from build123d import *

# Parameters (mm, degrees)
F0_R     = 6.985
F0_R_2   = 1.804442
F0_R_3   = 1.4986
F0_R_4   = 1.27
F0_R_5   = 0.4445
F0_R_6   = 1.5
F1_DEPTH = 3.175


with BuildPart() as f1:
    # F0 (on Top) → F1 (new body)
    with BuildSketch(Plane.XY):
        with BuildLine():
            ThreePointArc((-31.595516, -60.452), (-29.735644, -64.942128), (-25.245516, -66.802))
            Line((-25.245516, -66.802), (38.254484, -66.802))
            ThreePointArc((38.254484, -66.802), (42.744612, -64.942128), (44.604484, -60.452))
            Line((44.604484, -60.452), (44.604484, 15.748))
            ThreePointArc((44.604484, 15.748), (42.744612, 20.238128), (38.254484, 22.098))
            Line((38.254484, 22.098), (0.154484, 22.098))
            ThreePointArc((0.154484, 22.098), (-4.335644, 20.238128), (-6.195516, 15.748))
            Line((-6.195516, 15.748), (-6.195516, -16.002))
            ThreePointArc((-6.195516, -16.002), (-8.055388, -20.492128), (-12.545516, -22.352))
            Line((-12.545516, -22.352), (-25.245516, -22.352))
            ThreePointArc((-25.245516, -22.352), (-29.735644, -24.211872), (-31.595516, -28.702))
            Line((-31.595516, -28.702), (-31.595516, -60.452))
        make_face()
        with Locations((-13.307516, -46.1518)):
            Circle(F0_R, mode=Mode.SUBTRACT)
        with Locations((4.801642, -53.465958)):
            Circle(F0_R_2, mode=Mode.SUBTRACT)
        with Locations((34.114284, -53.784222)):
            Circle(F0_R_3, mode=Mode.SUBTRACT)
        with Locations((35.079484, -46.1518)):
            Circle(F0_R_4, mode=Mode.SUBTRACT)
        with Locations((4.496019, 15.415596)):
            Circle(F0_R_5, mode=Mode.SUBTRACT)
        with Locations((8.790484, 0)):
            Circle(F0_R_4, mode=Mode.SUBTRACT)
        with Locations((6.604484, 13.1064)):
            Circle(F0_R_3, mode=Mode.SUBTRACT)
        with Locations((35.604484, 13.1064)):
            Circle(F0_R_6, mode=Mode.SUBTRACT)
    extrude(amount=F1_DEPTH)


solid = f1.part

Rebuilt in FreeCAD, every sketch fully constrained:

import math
import FreeCAD as App
import Part
import Sketcher
from FreeCAD import Vector
Q = App.Units.Quantity

doc = App.newDocument("Part")
params = doc.addObject("Spreadsheet::Sheet", "Params")
for row, (alias, value) in enumerate([
    ("sketch1_diameter", "0.1 in"),
    ("sketch1_diameter2", "0.55 in"),
    ("sketch1_height", "3 in"),
    ("sketch1_radius", "0.25 in"),
    ("sketch1_diameter3", "0.118 in"),
    ("pad1_length", "0.125 in"),
], start=1):
    params.set(f"A{row}", alias)
    params.set(f"B{row}", "=" + value)
    params.setAlias(f"B{row}", alias)

body = doc.addObject("PartDesign::Body", "Body")

sketch1 = body.newObject("Sketcher::SketchObject", "Sketch")
sketch1.AttachmentSupport = (doc.getObject("XY_Plane"), [""])
sketch1.MapMode = "FlatFace"
sketch1.addGeometry([
    Part.ArcOfCircle(Part.Circle(Vector(-25.25, -60.45, 0), Vector(0, 0, 1), 6.35), math.radians(-180), math.radians(-90)),
    Part.LineSegment(Vector(-25.25, -66.8, 0), Vector(38.25, -66.8, 0)),
    Part.ArcOfCircle(Part.Circle(Vector(38.25, -60.45, 0), Vector(0, 0, 1), 6.35), math.radians(-90), math.radians(0)),
    Part.LineSegment(Vector(44.6, -60.45, 0), Vector(44.6, 15.75, 0)),
    Part.ArcOfCircle(Part.Circle(Vector(38.25, 15.75, 0), Vector(0, 0, 1), 6.35), math.radians(0), math.radians(90)),
    Part.LineSegment(Vector(38.25, 22.1, 0), Vector(0.15, 22.1, 0)),
    Part.ArcOfCircle(Part.Circle(Vector(0.15, 15.75, 0), Vector(0, 0, 1), 6.35), math.radians(90), math.radians(180)),
    Part.LineSegment(Vector(-6.2, 15.75, 0), Vector(-6.2, -16, 0)),
    Part.ArcOfCircle(Part.Circle(Vector(-12.55, -16, 0), Vector(0, 0, 1), 6.35), math.radians(-90), math.radians(0)),
    Part.LineSegment(Vector(-12.55, -22.35, 0), Vector(-25.25, -22.35, 0)),
    Part.ArcOfCircle(Part.Circle(Vector(-25.25, -28.7, 0), Vector(0, 0, 1), 6.35), math.radians(90), math.radians(180)),
    Part.LineSegment(Vector(-31.6, -28.7, 0), Vector(-31.6, -60.45, 0)),
    Part.Circle(Vector(-13.31, -46.15, 0), Vector(0, 0, 1), 6.99),
    Part.Circle(Vector(4.8, -53.47, 0), Vector(0, 0, 1), 1.8),
    Part.Circle(Vector(34.11, -53.78, 0), Vector(0, 0, 1), 1.5),
    Part.Circle(Vector(35.08, -46.15, 0), Vector(0, 0, 1), 1.27),
    Part.Circle(Vector(4.5, 15.42, 0), Vector(0, 0, 1), 0.44),
    Part.Circle(Vector(6.6, 13.11, 0), Vector(0, 0, 1), 1.5),
    Part.Circle(Vector(8.79, 0, 0), Vector(0, 0, 1), 1.27),
    Part.Circle(Vector(35.6, 13.11, 0), Vector(0, 0, 1), 1.5),
], False)
sketch1.addConstraint([
    Sketcher.Constraint("Tangent", 0, 2, 1, 1),
    Sketcher.Constraint("Tangent", 1, 2, 2, 1),
    Sketcher.Constraint("Tangent", 2, 2, 3, 1),
    Sketcher.Constraint("Tangent", 3, 2, 4, 1),
    Sketcher.Constraint("Tangent", 4, 2, 5, 1),
    Sketcher.Constraint("Tangent", 5, 2, 6, 1),
    Sketcher.Constraint("Tangent", 6, 2, 7, 1),
    Sketcher.Constraint("Tangent", 7, 2, 8, 2),
    Sketcher.Constraint("Tangent", 8, 1, 9, 1),
    Sketcher.Constraint("Tangent", 9, 2, 10, 1),
    Sketcher.Constraint("Tangent", 10, 2, 11, 1),
    Sketcher.Constraint("Tangent", 11, 2, 0, 1),
    Sketcher.Constraint("Horizontal", 1),
    Sketcher.Constraint("Vertical", 3),
    Sketcher.Constraint("Horizontal", 5),
    Sketcher.Constraint("Vertical", 7),
    Sketcher.Constraint("Horizontal", 9),
    Sketcher.Constraint("Vertical", 11),
    Sketcher.Constraint("Equal", 0, 2),
    Sketcher.Constraint("Equal", 2, 4),
    Sketcher.Constraint("Equal", 4, 6),
    Sketcher.Constraint("Equal", 6, 8),
    Sketcher.Constraint("Equal", 8, 10),
    Sketcher.Constraint("Equal", 14, 17),
    Sketcher.Constraint("Equal", 15, 18),
    Sketcher.Constraint("PointOnObject", 18, 3, -1),
    Sketcher.Constraint("Horizontal", 12, 3, 15, 3),
    Sketcher.Constraint("Horizontal", 17, 3, 19, 3),
    Sketcher.Constraint("Equal", 7, 11),
    Sketcher.Constraint("Diameter", 15, Q("0.1 in")),
    Sketcher.Constraint("Diameter", 12, Q("0.55 in")),
    Sketcher.Constraint("DistanceY", 3, 1, 3, 2, Q("3 in")),
    Sketcher.Constraint("Radius", 0, Q("0.25 in")),
    Sketcher.Constraint("Diameter", 14, Q("0.118 in")),
    Sketcher.Constraint("Diameter", 16, Q("0.035 in")),
    Sketcher.Constraint("DistanceX", 1, 1, 1, 2, Q("2.5 in")),
    Sketcher.Constraint("DistanceX", 5, 2, 5, 1, Q("1.5 in")),
    Sketcher.Constraint("Diameter", 19, Q("3 mm")),
    Sketcher.Constraint("DistanceY", 0, 3, -1, 1, Q("2.38 in")),
    Sketcher.Constraint("DistanceX", 0, 3, 12, 3, Q("0.47 in")),
    Sketcher.Constraint("DistanceX", 6, 3, 18, 3, Q("0.34 in")),
    Sketcher.Constraint("DistanceY", 12, 3, -1, 1, Q("1.817 in")),
    Sketcher.Constraint("DistanceY", -1, 1, 17, 3, Q("0.516 in")),
    Sketcher.Constraint("DistanceX", 14, 3, 2, 3, Q("0.163 in")),
    Sketcher.Constraint("DistanceX", 14, 3, 15, 3, Q("0.038 in")),
    Sketcher.Constraint("Diameter", 13, Q("3.608884 mm")),
    Sketcher.Constraint("DistanceX", 6, 3, 17, 3, Q("6.45 mm")),
    Sketcher.Constraint("DistanceX", 19, 3, 4, 3, Q("2.65 mm")),
    Sketcher.Constraint("DistanceX", -1, 1, 16, 3, Q("4.496019 mm")),
    Sketcher.Constraint("DistanceX", 12, 3, 13, 3, Q("18.109158 mm")),
    Sketcher.Constraint("DistanceY", 0, 3, 13, 3, Q("6.986042 mm")),
    Sketcher.Constraint("DistanceY", 14, 3, 12, 3, Q("7.632422 mm")),
    Sketcher.Constraint("DistanceX", 0, 3, -1, 1, Q("25.245516 mm")),
    Sketcher.Constraint("DistanceY", -1, 1, 16, 3, Q("15.415596 mm")),
])
sketch1.setExpression("Constraints[29]", "Params.sketch1_diameter")
sketch1.setExpression("Constraints[30]", "Params.sketch1_diameter2")
sketch1.setExpression("Constraints[31]", "Params.sketch1_height")
sketch1.setExpression("Constraints[32]", "Params.sketch1_radius")
sketch1.setExpression("Constraints[33]", "Params.sketch1_diameter3")
pad1 = body.newObject("PartDesign::Pad", "Pad")
pad1.Profile = sketch1
pad1.setExpression("Length", "Params.pad1_length")

doc.recompute()
